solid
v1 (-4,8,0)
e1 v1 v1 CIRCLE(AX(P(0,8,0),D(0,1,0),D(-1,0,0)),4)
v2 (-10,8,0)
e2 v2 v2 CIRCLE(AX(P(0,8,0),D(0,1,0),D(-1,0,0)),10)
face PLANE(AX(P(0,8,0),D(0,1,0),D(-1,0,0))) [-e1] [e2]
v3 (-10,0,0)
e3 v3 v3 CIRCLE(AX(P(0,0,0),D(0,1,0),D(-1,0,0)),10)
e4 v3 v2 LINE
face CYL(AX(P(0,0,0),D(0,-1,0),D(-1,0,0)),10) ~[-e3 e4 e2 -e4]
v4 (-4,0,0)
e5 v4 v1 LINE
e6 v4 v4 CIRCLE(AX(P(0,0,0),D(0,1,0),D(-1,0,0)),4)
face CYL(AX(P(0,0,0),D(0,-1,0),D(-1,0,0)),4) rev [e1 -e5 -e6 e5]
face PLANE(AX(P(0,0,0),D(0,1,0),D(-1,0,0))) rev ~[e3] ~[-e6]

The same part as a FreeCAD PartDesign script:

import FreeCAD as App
import Part
import Sketcher
Q = App.Units.Quantity

doc = App.newDocument("Part")
body = doc.addObject("PartDesign::Body", "Body")

# Sketch on XZ plane
sketch1 = body.newObject("Sketcher::SketchObject", "Sketch")
sketch1.AttachmentSupport = (doc.getObject("XZ_Plane"), [""])
sketch1.MapMode = "FlatFace"
sketch1.addGeometry([
    Part.Circle(App.Vector(0, 0, 0), App.Vector(0, 0, 1), 10),
    Part.Circle(App.Vector(0, 0, 0), App.Vector(0, 0, 1), 4),
], False)
sketch1.addConstraint([
    Sketcher.Constraint("Coincident", 0, 3, -1, 1),
    Sketcher.Constraint("Coincident", 1, 3, -1, 1),
    Sketcher.Constraint("Diameter", 0, Q("20 mm")),
    Sketcher.Constraint("Diameter", 1, Q("8 mm")),
])
pad1 = body.newObject("PartDesign::Pad", "Pad")
pad1.Profile = sketch1
pad1.Length = 8
pad1.Reversed = True

doc.recompute()
